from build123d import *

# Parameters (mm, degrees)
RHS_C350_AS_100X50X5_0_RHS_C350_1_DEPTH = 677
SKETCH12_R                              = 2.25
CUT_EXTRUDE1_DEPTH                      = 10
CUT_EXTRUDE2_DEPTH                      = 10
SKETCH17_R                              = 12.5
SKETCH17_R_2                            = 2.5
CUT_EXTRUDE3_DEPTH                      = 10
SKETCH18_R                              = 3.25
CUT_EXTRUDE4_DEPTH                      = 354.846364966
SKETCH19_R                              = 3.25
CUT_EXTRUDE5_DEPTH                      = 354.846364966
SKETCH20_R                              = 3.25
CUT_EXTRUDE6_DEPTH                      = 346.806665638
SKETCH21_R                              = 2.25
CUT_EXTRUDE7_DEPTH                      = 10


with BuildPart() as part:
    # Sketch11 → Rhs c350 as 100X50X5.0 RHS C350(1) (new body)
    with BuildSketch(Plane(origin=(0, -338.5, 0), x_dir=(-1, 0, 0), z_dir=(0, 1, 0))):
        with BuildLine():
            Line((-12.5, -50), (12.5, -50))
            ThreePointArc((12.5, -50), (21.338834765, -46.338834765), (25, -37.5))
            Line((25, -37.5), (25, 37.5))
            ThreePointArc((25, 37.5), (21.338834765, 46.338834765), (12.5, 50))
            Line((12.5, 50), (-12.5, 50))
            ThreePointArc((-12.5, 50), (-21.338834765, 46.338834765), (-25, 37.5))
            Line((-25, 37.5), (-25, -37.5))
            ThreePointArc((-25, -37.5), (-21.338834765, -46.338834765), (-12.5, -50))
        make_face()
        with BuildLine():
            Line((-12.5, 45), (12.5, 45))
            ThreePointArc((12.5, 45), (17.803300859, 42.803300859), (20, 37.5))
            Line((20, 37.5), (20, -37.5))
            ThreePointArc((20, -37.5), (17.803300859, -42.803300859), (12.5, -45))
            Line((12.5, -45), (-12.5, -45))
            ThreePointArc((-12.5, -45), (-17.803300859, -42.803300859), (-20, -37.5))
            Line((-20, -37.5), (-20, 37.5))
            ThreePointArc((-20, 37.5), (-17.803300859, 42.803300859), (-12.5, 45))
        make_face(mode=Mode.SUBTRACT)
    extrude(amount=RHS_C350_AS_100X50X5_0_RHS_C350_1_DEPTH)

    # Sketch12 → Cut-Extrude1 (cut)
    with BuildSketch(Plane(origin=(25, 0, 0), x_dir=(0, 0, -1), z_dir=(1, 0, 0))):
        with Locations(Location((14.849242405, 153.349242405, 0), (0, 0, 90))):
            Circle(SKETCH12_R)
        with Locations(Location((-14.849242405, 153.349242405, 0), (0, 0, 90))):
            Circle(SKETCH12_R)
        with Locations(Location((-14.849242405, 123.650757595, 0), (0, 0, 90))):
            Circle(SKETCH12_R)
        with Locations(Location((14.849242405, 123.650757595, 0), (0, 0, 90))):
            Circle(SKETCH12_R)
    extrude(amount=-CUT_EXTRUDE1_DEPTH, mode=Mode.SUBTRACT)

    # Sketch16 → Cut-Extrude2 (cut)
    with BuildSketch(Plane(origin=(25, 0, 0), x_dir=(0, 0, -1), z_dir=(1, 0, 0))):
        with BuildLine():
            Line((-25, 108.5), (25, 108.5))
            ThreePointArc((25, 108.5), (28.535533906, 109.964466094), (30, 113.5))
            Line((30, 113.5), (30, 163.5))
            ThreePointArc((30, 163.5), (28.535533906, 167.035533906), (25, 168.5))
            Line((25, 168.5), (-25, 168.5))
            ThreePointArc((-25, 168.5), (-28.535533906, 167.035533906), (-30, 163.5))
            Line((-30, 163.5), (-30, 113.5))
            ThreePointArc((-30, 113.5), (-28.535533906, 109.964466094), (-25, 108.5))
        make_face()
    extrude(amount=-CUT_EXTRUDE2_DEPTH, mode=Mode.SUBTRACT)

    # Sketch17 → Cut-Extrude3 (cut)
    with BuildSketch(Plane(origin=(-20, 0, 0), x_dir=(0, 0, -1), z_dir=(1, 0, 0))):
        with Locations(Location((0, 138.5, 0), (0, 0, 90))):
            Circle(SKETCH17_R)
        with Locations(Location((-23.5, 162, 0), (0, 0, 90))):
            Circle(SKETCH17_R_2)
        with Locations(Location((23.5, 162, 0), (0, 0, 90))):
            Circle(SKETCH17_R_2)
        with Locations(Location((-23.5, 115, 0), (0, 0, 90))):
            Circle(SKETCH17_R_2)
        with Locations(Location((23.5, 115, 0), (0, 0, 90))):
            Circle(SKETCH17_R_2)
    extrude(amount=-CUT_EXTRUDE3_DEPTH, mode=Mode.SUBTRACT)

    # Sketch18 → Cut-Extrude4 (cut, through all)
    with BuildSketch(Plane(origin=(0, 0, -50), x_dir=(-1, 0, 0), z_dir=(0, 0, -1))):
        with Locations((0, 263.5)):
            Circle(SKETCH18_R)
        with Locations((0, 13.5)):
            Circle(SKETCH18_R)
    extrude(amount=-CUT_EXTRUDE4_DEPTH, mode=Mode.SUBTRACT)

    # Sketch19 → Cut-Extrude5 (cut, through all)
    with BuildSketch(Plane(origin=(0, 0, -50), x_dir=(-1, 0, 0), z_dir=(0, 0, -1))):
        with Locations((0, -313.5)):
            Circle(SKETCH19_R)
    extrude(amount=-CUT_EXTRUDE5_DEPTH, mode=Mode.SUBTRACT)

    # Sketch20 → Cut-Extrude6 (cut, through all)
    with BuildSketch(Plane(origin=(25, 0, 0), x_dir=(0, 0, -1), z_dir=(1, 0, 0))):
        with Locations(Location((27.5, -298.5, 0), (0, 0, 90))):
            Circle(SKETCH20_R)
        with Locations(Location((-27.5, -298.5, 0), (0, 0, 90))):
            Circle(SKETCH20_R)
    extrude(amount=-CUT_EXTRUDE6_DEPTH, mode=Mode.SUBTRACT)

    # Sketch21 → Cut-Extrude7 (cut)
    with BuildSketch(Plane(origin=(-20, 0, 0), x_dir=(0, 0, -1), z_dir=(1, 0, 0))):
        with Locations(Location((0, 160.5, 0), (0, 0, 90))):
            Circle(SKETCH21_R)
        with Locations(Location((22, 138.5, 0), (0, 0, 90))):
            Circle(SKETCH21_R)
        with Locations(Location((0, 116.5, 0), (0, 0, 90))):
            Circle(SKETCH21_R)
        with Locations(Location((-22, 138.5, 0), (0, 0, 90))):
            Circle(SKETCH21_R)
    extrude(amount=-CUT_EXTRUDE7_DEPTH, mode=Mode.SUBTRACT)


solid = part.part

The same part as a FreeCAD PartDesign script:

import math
import FreeCAD as App
import Part
import Sketcher
from FreeCAD import Vector
Q = App.Units.Quantity

doc = App.newDocument("Part")
body = doc.addObject("PartDesign::Body", "Body")

sketch1 = doc.addObject("Sketcher::SketchObject", "Sketch")
body.addObject(sketch1)
sketch1.AttachmentSupport = (doc.XZ_Plane, [""])
sketch1.MapMode = "FlatFace"
sketch1.AttachmentOffset = App.Placement(Vector(0, 0, 338.5), App.Rotation())
sketch1.addGeometry([
    Part.LineSegment(Vector(12.5, -50, 0), Vector(-12.5, -50, 0)),
    Part.ArcOfCircle(Part.Circle(Vector(-12.5, -37.5, 0), Vector(0, 0, 1), 12.5), math.radians(180), math.radians(270)),
    Part.LineSegment(Vector(-25, -37.5, 0), Vector(-25, 37.5, 0)),
    Part.ArcOfCircle(Part.Circle(Vector(-12.5, 37.5, 0), Vector(0, 0, 1), 12.5), math.radians(90), math.radians(180)),
    Part.LineSegment(Vector(-12.5, 50, 0), Vector(12.5, 50, 0)),
    Part.ArcOfCircle(Part.Circle(Vector(12.5, 37.5, 0), Vector(0, 0, 1), 12.5), math.radians(0), math.radians(90)),
    Part.LineSegment(Vector(25, 37.5, 0), Vector(25, -37.5, 0)),
    Part.ArcOfCircle(Part.Circle(Vector(12.5, -37.5, 0), Vector(0, 0, 1), 12.5), math.radians(-90), math.radians(0)),
    Part.ArcOfCircle(Part.Circle(Vector(12.5, 37.5, 0), Vector(0, 0, 1), 7.5), math.radians(0), math.radians(90)),
    Part.LineSegment(Vector(12.5, 45, 0), Vector(-12.5, 45, 0)),
    Part.ArcOfCircle(Part.Circle(Vector(-12.5, 37.5, 0), Vector(0, 0, 1), 7.5), math.radians(90), math.radians(180)),
    Part.LineSegment(Vector(-20, 37.5, 0), Vector(-20, -37.5, 0)),
    Part.ArcOfCircle(Part.Circle(Vector(-12.5, -37.5, 0), Vector(0, 0, 1), 7.5), math.radians(180), math.radians(270)),
    Part.LineSegment(Vector(-12.5, -45, 0), Vector(12.5, -45, 0)),
    Part.ArcOfCircle(Part.Circle(Vector(12.5, -37.5, 0), Vector(0, 0, 1), 7.5), math.radians(-90), math.radians(0)),
    Part.LineSegment(Vector(20, -37.5, 0), Vector(20, 37.5, 0)),
], False)
sketch1.addConstraint([
    Sketcher.Constraint("Tangent", 0, 2, 1, 2),
    Sketcher.Constraint("Tangent", 1, 1, 2, 1),
    Sketcher.Constraint("Tangent", 2, 2, 3, 2),
    Sketcher.Constraint("Tangent", 3, 1, 4, 1),
    Sketcher.Constraint("Tangent", 4, 2, 5, 2),
    Sketcher.Constraint("Tangent", 5, 1, 6, 1),
    Sketcher.Constraint("Tangent", 6, 2, 7, 2),
    Sketcher.Constraint("Tangent", 7, 1, 0, 1),
    Sketcher.Constraint("Tangent", 8, 2, 9, 1),
    Sketcher.Constraint("Tangent", 9, 2, 10, 1),
    Sketcher.Constraint("Tangent", 10, 2, 11, 1),
    Sketcher.Constraint("Tangent", 11, 2, 12, 1),
    Sketcher.Constraint("Tangent", 12, 2, 13, 1),
    Sketcher.Constraint("Tangent", 13, 2, 14, 1),
    Sketcher.Constraint("Tangent", 14, 2, 15, 1),
    Sketcher.Constraint("Tangent", 15, 2, 8, 1),
    Sketcher.Constraint("Horizontal", 0),
    Sketcher.Constraint("Vertical", 2),
    Sketcher.Constraint("Horizontal", 4),
    Sketcher.Constraint("Vertical", 6),
    Sketcher.Constraint("Horizontal", 9),
    Sketcher.Constraint("Vertical", 11),
    Sketcher.Constraint("Horizontal", 13),
    Sketcher.Constraint("Vertical", 15),
    Sketcher.Constraint("Coincident", 8, 3, 5, 3),
    Sketcher.Constraint("Coincident", 10, 3, 3, 3),
    Sketcher.Constraint("Coincident", 12, 3, 1, 3),
    Sketcher.Constraint("Equal", 1, 3),
    Sketcher.Constraint("Equal", 3, 5),
    Sketcher.Constraint("Equal", 5, 7),
    Sketcher.Constraint("Equal", 12, 14),
    Sketcher.Constraint("Symmetric", 1, 3, 5, 3, -1, 1),
    Sketcher.Constraint("Radius", 1, Q("12.5 mm")),
    Sketcher.Constraint("Radius", 8, Q("7.5 mm")),
    Sketcher.Constraint("DistanceX", 0, 2, 0, 1, Q("25 mm")),
    Sketcher.Constraint("DistanceY", 2, 1, 2, 2, Q("75 mm")),
])
pad1 = doc.addObject("PartDesign::Pad", "Pad")
body.addObject(pad1)
pad1.Profile = sketch1
pad1.Length = 677
pad1.Reversed = True

sketch2 = doc.addObject("Sketcher::SketchObject", "Sketch001")
body.addObject(sketch2)
sketch2.AttachmentSupport = (doc.YZ_Plane, [""])
sketch2.MapMode = "FlatFace"
sketch2.AttachmentOffset = App.Placement(Vector(0, 0, 25), App.Rotation())
sketch2.addGeometry([
    Part.Circle(Vector(153.349242, -14.849242, 0), Vector(0, 0, 1), 2.25),
    Part.Circle(Vector(153.349242, 14.849242, 0), Vector(0, 0, 1), 2.25),
    Part.Circle(Vector(123.650758, 14.849242, 0), Vector(0, 0, 1), 2.25),
    Part.Circle(Vector(123.650758, -14.849242, 0), Vector(0, 0, 1), 2.25),
], False)
sketch2.addConstraint([
    Sketcher.Constraint("Equal", 0, 1),
    Sketcher.Constraint("Equal", 1, 2),
    Sketcher.Constraint("Equal", 2, 3),
    Sketcher.Constraint("Symmetric", 0, 3, 1, 3, -1),
    Sketcher.Constraint("Symmetric", 2, 3, 3, 3, -1),
    Sketcher.Constraint("Horizontal", 1, 3, 2, 3),
    Sketcher.Constraint("Diameter", 0, Q("4.5 mm")),
    Sketcher.Constraint("DistanceX", -1, 1, 0, 3, Q("153.349242 mm")),
    Sketcher.Constraint("DistanceY", 0, 3, -1, 1, Q("14.849242 mm")),
    Sketcher.Constraint("DistanceX", -1, 1, 2, 3, Q("123.650758 mm")),
])
pocket1 = doc.addObject("PartDesign::Pocket", "Pocket")
body.addObject(pocket1)
pocket1.Profile = sketch2
pocket1.Length = 10

sketch3 = doc.addObject("Sketcher::SketchObject", "Sketch002")
body.addObject(sketch3)
sketch3.AttachmentSupport = (doc.YZ_Plane, [""])
sketch3.MapMode = "FlatFace"
sketch3.AttachmentOffset = App.Placement(Vector(0, 0, 25), App.Rotation())
sketch3.addGeometry([
    Part.LineSegment(Vector(108.5, 25, 0), Vector(108.5, -25, 0)),
    Part.ArcOfCircle(Part.Circle(Vector(113.5, -25, 0), Vector(0, 0, 1), 5), math.radians(180), math.radians(270)),
    Part.LineSegment(Vector(113.5, -30, 0), Vector(163.5, -30, 0)),
    Part.ArcOfCircle(Part.Circle(Vector(163.5, -25, 0), Vector(0, 0, 1), 5), math.radians(-90), math.radians(0)),
    Part.LineSegment(Vector(168.5, -25, 0), Vector(168.5, 25, 0)),
    Part.ArcOfCircle(Part.Circle(Vector(163.5, 25, 0), Vector(0, 0, 1), 5), math.radians(0), math.radians(90)),
    Part.LineSegment(Vector(163.5, 30, 0), Vector(113.5, 30, 0)),
    Part.ArcOfCircle(Part.Circle(Vector(113.5, 25, 0), Vector(0, 0, 1), 5), math.radians(90), math.radians(180)),
], False)
sketch3.addConstraint([
    Sketcher.Constraint("Tangent", 0, 2, 1, 1),
    Sketcher.Constraint("Tangent", 1, 2, 2, 1),
    Sketcher.Constraint("Tangent", 2, 2, 3, 1),
    Sketcher.Constraint("Tangent", 3, 2, 4, 1),
    Sketcher.Constraint("Tangent", 4, 2, 5, 1),
    Sketcher.Constraint("Tangent", 5, 2, 6, 1),
    Sketcher.Constraint("Tangent", 6, 2, 7, 1),
    Sketcher.Constraint("Tangent", 7, 2, 0, 1),
    Sketcher.Constraint("Vertical", 0),
    Sketcher.Constraint("Horizontal", 2),
    Sketcher.Constraint("Vertical", 4),
    Sketcher.Constraint("Horizontal", 6),
    Sketcher.Constraint("Equal", 1, 3),
    Sketcher.Constraint("Equal", 3, 5),
    Sketcher.Constraint("Equal", 5, 7),
    Sketcher.Constraint("Equal", 6, 0),
    Sketcher.Constraint("Radius", 1, Q("5 mm")),
    Sketcher.Constraint("DistanceX", 2, 1, 2, 2, Q("50 mm")),
    Sketcher.Constraint("DistanceY", 1, 3, -1, 1, Q("25 mm")),
    Sketcher.Constraint("DistanceX", -1, 1, 1, 3, Q("113.5 mm")),
])
pocket2 = doc.addObject("PartDesign::Pocket", "Pocket001")
body.addObject(pocket2)
pocket2.Profile = sketch3
pocket2.Length = 10

sketch4 = doc.addObject("Sketcher::SketchObject", "Sketch003")
body.addObject(sketch4)
sketch4.AttachmentSupport = (doc.YZ_Plane, [""])
sketch4.MapMode = "FlatFace"
sketch4.AttachmentOffset = App.Placement(Vector(0, 0, -20), App.Rotation())
sketch4.addGeometry([
    Part.Circle(Vector(138.5, 0, 0), Vector(0, 0, 1), 12.5),
    Part.Circle(Vector(162, 23.5, 0), Vector(0, 0, 1), 2.5),
    Part.Circle(Vector(162, -23.5, 0), Vector(0, 0, 1), 2.5),
    Part.Circle(Vector(115, 23.5, 0), Vector(0, 0, 1), 2.5),
    Part.Circle(Vector(115, -23.5, 0), Vector(0, 0, 1), 2.5),
], False)
sketch4.addConstraint([
    Sketcher.Constraint("Equal", 1, 2),
    Sketcher.Constraint("Equal", 2, 3),
    Sketcher.Constraint("Equal", 3, 4),
    Sketcher.Constraint("Symmetric", 1, 3, 2, 3, -1),
    Sketcher.Constraint("Symmetric", 3, 3, 4, 3, -1),
    Sketcher.Constraint("PointOnObject", 0, 3, -1),
    Sketcher.Constraint("Horizontal", 1, 3, 3, 3),
    Sketcher.Constraint("Diameter", 0, Q("25 mm")),
    Sketcher.Constraint("Diameter", 1, Q("5 mm")),
    Sketcher.Constraint("DistanceX", -1, 1, 1, 3, Q("162 mm")),
    Sketcher.Constraint("DistanceX", -1, 1, 3, 3, Q("115 mm")),
    Sketcher.Constraint("DistanceY", 2, 3, 1, 3, Q("47 mm")),
    Sketcher.Constraint("DistanceX", -1, 1, 0, 3, Q("138.5 mm")),
])
pocket3 = doc.addObject("PartDesign::Pocket", "Pocket002")
body.addObject(pocket3)
pocket3.Profile = sketch4
pocket3.Length = 10

sketch5 = doc.addObject("Sketcher::SketchObject", "Sketch004")
body.addObject(sketch5)
sketch5.AttachmentSupport = (doc.XY_Plane, [""])
sketch5.MapMode = "FlatFace"
sketch5.AttachmentOffset = App.Placement(Vector(0, 0, -50), App.Rotation())
sketch5.addGeometry([
    Part.Circle(Vector(0, 263.5, 0), Vector(0, 0, 1), 3.25),
    Part.Circle(Vector(0, 13.5, 0), Vector(0, 0, 1), 3.25),
], False)
sketch5.addConstraint([
    Sketcher.Constraint("Equal", 0, 1),
    Sketcher.Constraint("PointOnObject", 0, 3, -2),
    Sketcher.Constraint("PointOnObject", 1, 3, -2),
    Sketcher.Constraint("Diameter", 0, Q("6.5 mm")),
    Sketcher.Constraint("DistanceY", 1, 3, 0, 3, Q("250 mm")),
    Sketcher.Constraint("DistanceY", -1, 1, 0, 3, Q("263.5 mm")),
])
pocket4 = doc.addObject("PartDesign::Pocket", "Pocket003")
body.addObject(pocket4)
pocket4.Profile = sketch5
pocket4.Type = "ThroughAll"
pocket4.Reversed = True

sketch6 = doc.addObject("Sketcher::SketchObject", "Sketch005")
body.addObject(sketch6)
sketch6.AttachmentSupport = (doc.XY_Plane, [""])
sketch6.MapMode = "FlatFace"
sketch6.AttachmentOffset = App.Placement(Vector(0, 0, -50), App.Rotation())
sketch6.addGeometry(Part.Circle(Vector(0, -313.5, 0), Vector(0, 0, 1), 3.25), False)
sketch6.addConstraint([
    Sketcher.Constraint("PointOnObject", 0, 3, -2),
    Sketcher.Constraint("Diameter", 0, Q("6.5 mm")),
    Sketcher.Constraint("DistanceY", 0, 3, -1, 1, Q("313.5 mm")),
])
pocket5 = doc.addObject("PartDesign::Pocket", "Pocket004")
body.addObject(pocket5)
pocket5.Profile = sketch6
pocket5.Type = "ThroughAll"
pocket5.Reversed = True

sketch7 = doc.addObject("Sketcher::SketchObject", "Sketch006")
body.addObject(sketch7)
sketch7.AttachmentSupport = (doc.YZ_Plane, [""])
sketch7.MapMode = "FlatFace"
sketch7.AttachmentOffset = App.Placement(Vector(0, 0, 25), App.Rotation())
sketch7.addGeometry([
    Part.Circle(Vector(-298.5, -27.5, 0), Vector(0, 0, 1), 3.25),
    Part.Circle(Vector(-298.5, 27.5, 0), Vector(0, 0, 1), 3.25),
], False)
sketch7.addConstraint([
    Sketcher.Constraint("Equal", 0, 1),
    Sketcher.Constraint("Symmetric", 0, 3, 1, 3, -1),
    Sketcher.Constraint("Diameter", 0, Q("6.5 mm")),
    Sketcher.Constraint("DistanceY", 0, 3, 1, 3, Q("55 mm")),
    Sketcher.Constraint("DistanceX", 0, 3, -1, 1, Q("298.5 mm")),
])
pocket6 = doc.addObject("PartDesign::Pocket", "Pocket005")
body.addObject(pocket6)
pocket6.Profile = sketch7
pocket6.Type = "ThroughAll"

sketch8 = doc.addObject("Sketcher::SketchObject", "Sketch007")
body.addObject(sketch8)
sketch8.AttachmentSupport = (doc.YZ_Plane, [""])
sketch8.MapMode = "FlatFace"
sketch8.AttachmentOffset = App.Placement(Vector(0, 0, -20), App.Rotation())
sketch8.addGeometry([
    Part.Circle(Vector(160.5, 0, 0), Vector(0, 0, 1), 2.25),
    Part.Circle(Vector(138.5, -22, 0), Vector(0, 0, 1), 2.25),
    Part.Circle(Vector(116.5, 0, 0), Vector(0, 0, 1), 2.25),
    Part.Circle(Vector(138.5, 22, 0), Vector(0, 0, 1), 2.25),
], False)
sketch8.addConstraint([
    Sketcher.Constraint("Equal", 0, 1),
    Sketcher.Constraint("Equal", 1, 2),
    Sketcher.Constraint("Equal", 2, 3),
    Sketcher.Constraint("Symmetric", 1, 3, 3, 3, -1),
    Sketcher.Constraint("PointOnObject", 0, 3, -1),
    Sketcher.Constraint("PointOnObject", 2, 3, -1),
    Sketcher.Constraint("Diameter", 0, Q("4.5 mm")),
    Sketcher.Constraint("DistanceY", 1, 3, -1, 1, Q("22 mm")),
    Sketcher.Constraint("DistanceX", 1, 3, 0, 3, Q("22 mm")),
    Sketcher.Constraint("DistanceX", 2, 3, 1, 3, Q("22 mm")),
    Sketcher.Constraint("DistanceX", -1, 1, 0, 3, Q("160.5 mm")),
])
pocket7 = doc.addObject("PartDesign::Pocket", "Pocket006")
body.addObject(pocket7)
pocket7.Profile = sketch8
pocket7.Length = 10

doc.recompute()
